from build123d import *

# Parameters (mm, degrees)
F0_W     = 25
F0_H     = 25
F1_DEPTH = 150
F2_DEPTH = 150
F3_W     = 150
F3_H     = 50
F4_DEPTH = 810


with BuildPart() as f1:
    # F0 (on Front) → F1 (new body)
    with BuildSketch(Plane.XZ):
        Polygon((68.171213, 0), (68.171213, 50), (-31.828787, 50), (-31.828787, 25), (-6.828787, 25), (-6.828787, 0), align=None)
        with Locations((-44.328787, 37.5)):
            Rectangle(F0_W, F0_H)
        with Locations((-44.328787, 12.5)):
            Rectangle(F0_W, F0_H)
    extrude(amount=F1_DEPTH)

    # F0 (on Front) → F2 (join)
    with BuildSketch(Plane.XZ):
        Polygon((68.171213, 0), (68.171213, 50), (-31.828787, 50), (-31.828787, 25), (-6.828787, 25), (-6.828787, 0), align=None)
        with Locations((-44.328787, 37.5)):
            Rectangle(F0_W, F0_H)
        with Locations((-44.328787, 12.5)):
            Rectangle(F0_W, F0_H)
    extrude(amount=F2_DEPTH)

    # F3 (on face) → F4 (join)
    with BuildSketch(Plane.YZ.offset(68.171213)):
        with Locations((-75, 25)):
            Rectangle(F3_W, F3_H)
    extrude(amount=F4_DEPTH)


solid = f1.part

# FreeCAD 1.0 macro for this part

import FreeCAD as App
import Part
import Sketcher
from FreeCAD import Vector

doc = App.newDocument("Part")
body = doc.addObject("PartDesign::Body", "Body")

# Sketch on XZ plane
sketch1 = body.newObject("Sketcher::SketchObject", "Sketch")
sketch1.AttachmentSupport = (doc.getObject("XZ_Plane"), [""])
sketch1.MapMode = "FlatFace"
sketch1.addGeometry(Part.LineSegment(Vector(68.171213, 0, 0), Vector(68.171213, 50, 0)), False)
sketch1.addGeometry(Part.LineSegment(Vector(68.171213, 50, 0), Vector(-56.828787, 50, 0)), False)
sketch1.addGeometry(Part.LineSegment(Vector(-56.828787, 50, 0), Vector(-56.828787, 0, 0)), False)
sketch1.addGeometry(Part.LineSegment(Vector(-56.828787, 0, 0), Vector(-31.828787, 0, 0)), False)
sketch1.addGeometry(Part.LineSegment(Vector(-31.828787, 0, 0), Vector(-31.828787, 25, 0)), False)
sketch1.addGeometry(Part.LineSegment(Vector(-31.828787, 25, 0), Vector(-6.828787, 25, 0)), False)
sketch1.addGeometry(Part.LineSegment(Vector(-6.828787, 25, 0), Vector(-6.828787, 0, 0)), False)
sketch1.addGeometry(Part.LineSegment(Vector(-6.828787, 0, 0), Vector(68.171213, 0, 0)), False)
sketch1.addConstraint(Sketcher.Constraint("Coincident", 0, 2, 1, 1))
sketch1.addConstraint(Sketcher.Constraint("Coincident", 1, 2, 2, 1))
sketch1.addConstraint(Sketcher.Constraint("Coincident", 2, 2, 3, 1))
sketch1.addConstraint(Sketcher.Constraint("Coincident", 3, 2, 4, 1))
sketch1.addConstraint(Sketcher.Constraint("Coincident", 4, 2, 5, 1))
sketch1.addConstraint(Sketcher.Constraint("Coincident", 5, 2, 6, 1))
sketch1.addConstraint(Sketcher.Constraint("Coincident", 6, 2, 7, 1))
sketch1.addConstraint(Sketcher.Constraint("Coincident", 7, 2, 0, 1))
sketch1.addConstraint(Sketcher.Constraint("Vertical", 0))
sketch1.addConstraint(Sketcher.Constraint("Horizontal", 1))
sketch1.addConstraint(Sketcher.Constraint("Vertical", 2))
sketch1.addConstraint(Sketcher.Constraint("Horizontal", 3))
sketch1.addConstraint(Sketcher.Constraint("Vertical", 4))
sketch1.addConstraint(Sketcher.Constraint("Horizontal", 5))
sketch1.addConstraint(Sketcher.Constraint("Vertical", 6))
sketch1.addConstraint(Sketcher.Constraint("Horizontal", 7))
sketch1.addConstraint(Sketcher.Constraint("PointOnObject", 2, 2, -1))
sketch1.addConstraint(Sketcher.Constraint("PointOnObject", 6, 2, -1))
sketch1.addConstraint(Sketcher.Constraint("Equal", 3, 5))
sketch1.addConstraint(Sketcher.Constraint("Equal", 5, 4))
sketch1.addConstraint(Sketcher.Constraint("DistanceX", 1, 2, 1, 1, 125.0))
sketch1.addConstraint(Sketcher.Constraint("DistanceX", 3, 1, 3, 2, 25.0))
sketch1.addConstraint(Sketcher.Constraint("DistanceY", 0, 1, 0, 2, 50.0))
sketch1.addConstraint(Sketcher.Constraint("DistanceX", -1, 1, 0, 2, 68.171213))
pad1 = body.newObject("PartDesign::Pad", "Pad")
pad1.Profile = sketch1
pad1.Length = 150

# Sketch on XZ plane
sketch2 = body.newObject("Sketcher::SketchObject", "Sketch001")
sketch2.AttachmentSupport = (doc.getObject("XZ_Plane"), [""])
sketch2.MapMode = "FlatFace"
sketch2.addGeometry(Part.LineSegment(Vector(68.171213, 0, 0), Vector(68.171213, 50, 0)), False)
sketch2.addGeometry(Part.LineSegment(Vector(68.171213, 50, 0), Vector(-56.828787, 50, 0)), False)
sketch2.addGeometry(Part.LineSegment(Vector(-56.828787, 50, 0), Vector(-56.828787, 0, 0)), False)
sketch2.addGeometry(Part.LineSegment(Vector(-56.828787, 0, 0), Vector(-31.828787, 0, 0)), False)
sketch2.addGeometry(Part.LineSegment(Vector(-31.828787, 0, 0), Vector(-31.828787, 25, 0)), False)
sketch2.addGeometry(Part.LineSegment(Vector(-31.828787, 25, 0), Vector(-6.828787, 25, 0)), False)
sketch2.addGeometry(Part.LineSegment(Vector(-6.828787, 25, 0), Vector(-6.828787, 0, 0)), False)
sketch2.addGeometry(Part.LineSegment(Vector(-6.828787, 0, 0), Vector(68.171213, 0, 0)), False)
sketch2.addConstraint(Sketcher.Constraint("Coincident", 0, 2, 1, 1))
sketch2.addConstraint(Sketcher.Constraint("Coincident", 1, 2, 2, 1))
sketch2.addConstraint(Sketcher.Constraint("Coincident", 2, 2, 3, 1))
sketch2.addConstraint(Sketcher.Constraint("Coincident", 3, 2, 4, 1))
sketch2.addConstraint(Sketcher.Constraint("Coincident", 4, 2, 5, 1))
sketch2.addConstraint(Sketcher.Constraint("Coincident", 5, 2, 6, 1))
sketch2.addConstraint(Sketcher.Constraint("Coincident", 6, 2, 7, 1))
sketch2.addConstraint(Sketcher.Constraint("Coincident", 7, 2, 0, 1))
sketch2.addConstraint(Sketcher.Constraint("Vertical", 0))
sketch2.addConstraint(Sketcher.Constraint("Horizontal", 1))
sketch2.addConstraint(Sketcher.Constraint("Vertical", 2))
sketch2.addConstraint(Sketcher.Constraint("Horizontal", 3))
sketch2.addConstraint(Sketcher.Constraint("Vertical", 4))
sketch2.addConstraint(Sketcher.Constraint("Horizontal", 5))
sketch2.addConstraint(Sketcher.Constraint("Vertical", 6))
sketch2.addConstraint(Sketcher.Constraint("Horizontal", 7))
sketch2.addConstraint(Sketcher.Constraint("PointOnObject", 2, 2, -1))
sketch2.addConstraint(Sketcher.Constraint("PointOnObject", 6, 2, -1))
sketch2.addConstraint(Sketcher.Constraint("Equal", 3, 5))
sketch2.addConstraint(Sketcher.Constraint("Equal", 5, 4))
sketch2.addConstraint(Sketcher.Constraint("DistanceX", 1, 2, 1, 1, 125.0))
sketch2.addConstraint(Sketcher.Constraint("DistanceX", 3, 1, 3, 2, 25.0))
sketch2.addConstraint(Sketcher.Constraint("DistanceY", 0, 1, 0, 2, 50.0))
sketch2.addConstraint(Sketcher.Constraint("DistanceX", -1, 1, 0, 2, 68.171213))
pad2 = body.newObject("PartDesign::Pad", "Pad001")
pad2.Profile = sketch2
pad2.Length = 150

# Sketch on YZ plane
sketch3 = body.newObject("Sketcher::SketchObject", "Sketch002")
sketch3.AttachmentSupport = (doc.getObject("YZ_Plane"), [""])
sketch3.MapMode = "FlatFace"
sketch3.AttachmentOffset = App.Placement(Vector(0, 0, 68.171213), App.Rotation())
sketch3.addGeometry(Part.LineSegment(Vector(-150, 50, 0), Vector(-150, 0, 0)), False)
sketch3.addGeometry(Part.LineSegment(Vector(-150, 0, 0), Vector(0, 0, 0)), False)
sketch3.addGeometry(Part.LineSegment(Vector(0, 0, 0), Vector(0, 50, 0)), False)
sketch3.addGeometry(Part.LineSegment(Vector(0, 50, 0), Vector(-150, 50, 0)), False)
sketch3.addConstraint(Sketcher.Constraint("Coincident", 0, 2, 1, 1))
sketch3.addConstraint(Sketcher.Constraint("Coincident", 1, 2, 2, 1))
sketch3.addConstraint(Sketcher.Constraint("Coincident", 2, 2, 3, 1))
sketch3.addConstraint(Sketcher.Constraint("Coincident", 3, 2, 0, 1))
sketch3.addConstraint(Sketcher.Constraint("Vertical", 0))
sketch3.addConstraint(Sketcher.Constraint("Horizontal", 1))
sketch3.addConstraint(Sketcher.Constraint("Vertical", 2))
sketch3.addConstraint(Sketcher.Constraint("Horizontal", 3))
sketch3.addConstraint(Sketcher.Constraint("Coincident", 1, 2, -1, 1))
sketch3.addConstraint(Sketcher.Constraint("DistanceX", 1, 1, 1, 2, 150.0))
sketch3.addConstraint(Sketcher.Constraint("DistanceY", 0, 2, 0, 1, 50.0))
pad3 = body.newObject("PartDesign::Pad", "Pad002")
pad3.Profile = sketch3
pad3.Length = 810

doc.recompute()
